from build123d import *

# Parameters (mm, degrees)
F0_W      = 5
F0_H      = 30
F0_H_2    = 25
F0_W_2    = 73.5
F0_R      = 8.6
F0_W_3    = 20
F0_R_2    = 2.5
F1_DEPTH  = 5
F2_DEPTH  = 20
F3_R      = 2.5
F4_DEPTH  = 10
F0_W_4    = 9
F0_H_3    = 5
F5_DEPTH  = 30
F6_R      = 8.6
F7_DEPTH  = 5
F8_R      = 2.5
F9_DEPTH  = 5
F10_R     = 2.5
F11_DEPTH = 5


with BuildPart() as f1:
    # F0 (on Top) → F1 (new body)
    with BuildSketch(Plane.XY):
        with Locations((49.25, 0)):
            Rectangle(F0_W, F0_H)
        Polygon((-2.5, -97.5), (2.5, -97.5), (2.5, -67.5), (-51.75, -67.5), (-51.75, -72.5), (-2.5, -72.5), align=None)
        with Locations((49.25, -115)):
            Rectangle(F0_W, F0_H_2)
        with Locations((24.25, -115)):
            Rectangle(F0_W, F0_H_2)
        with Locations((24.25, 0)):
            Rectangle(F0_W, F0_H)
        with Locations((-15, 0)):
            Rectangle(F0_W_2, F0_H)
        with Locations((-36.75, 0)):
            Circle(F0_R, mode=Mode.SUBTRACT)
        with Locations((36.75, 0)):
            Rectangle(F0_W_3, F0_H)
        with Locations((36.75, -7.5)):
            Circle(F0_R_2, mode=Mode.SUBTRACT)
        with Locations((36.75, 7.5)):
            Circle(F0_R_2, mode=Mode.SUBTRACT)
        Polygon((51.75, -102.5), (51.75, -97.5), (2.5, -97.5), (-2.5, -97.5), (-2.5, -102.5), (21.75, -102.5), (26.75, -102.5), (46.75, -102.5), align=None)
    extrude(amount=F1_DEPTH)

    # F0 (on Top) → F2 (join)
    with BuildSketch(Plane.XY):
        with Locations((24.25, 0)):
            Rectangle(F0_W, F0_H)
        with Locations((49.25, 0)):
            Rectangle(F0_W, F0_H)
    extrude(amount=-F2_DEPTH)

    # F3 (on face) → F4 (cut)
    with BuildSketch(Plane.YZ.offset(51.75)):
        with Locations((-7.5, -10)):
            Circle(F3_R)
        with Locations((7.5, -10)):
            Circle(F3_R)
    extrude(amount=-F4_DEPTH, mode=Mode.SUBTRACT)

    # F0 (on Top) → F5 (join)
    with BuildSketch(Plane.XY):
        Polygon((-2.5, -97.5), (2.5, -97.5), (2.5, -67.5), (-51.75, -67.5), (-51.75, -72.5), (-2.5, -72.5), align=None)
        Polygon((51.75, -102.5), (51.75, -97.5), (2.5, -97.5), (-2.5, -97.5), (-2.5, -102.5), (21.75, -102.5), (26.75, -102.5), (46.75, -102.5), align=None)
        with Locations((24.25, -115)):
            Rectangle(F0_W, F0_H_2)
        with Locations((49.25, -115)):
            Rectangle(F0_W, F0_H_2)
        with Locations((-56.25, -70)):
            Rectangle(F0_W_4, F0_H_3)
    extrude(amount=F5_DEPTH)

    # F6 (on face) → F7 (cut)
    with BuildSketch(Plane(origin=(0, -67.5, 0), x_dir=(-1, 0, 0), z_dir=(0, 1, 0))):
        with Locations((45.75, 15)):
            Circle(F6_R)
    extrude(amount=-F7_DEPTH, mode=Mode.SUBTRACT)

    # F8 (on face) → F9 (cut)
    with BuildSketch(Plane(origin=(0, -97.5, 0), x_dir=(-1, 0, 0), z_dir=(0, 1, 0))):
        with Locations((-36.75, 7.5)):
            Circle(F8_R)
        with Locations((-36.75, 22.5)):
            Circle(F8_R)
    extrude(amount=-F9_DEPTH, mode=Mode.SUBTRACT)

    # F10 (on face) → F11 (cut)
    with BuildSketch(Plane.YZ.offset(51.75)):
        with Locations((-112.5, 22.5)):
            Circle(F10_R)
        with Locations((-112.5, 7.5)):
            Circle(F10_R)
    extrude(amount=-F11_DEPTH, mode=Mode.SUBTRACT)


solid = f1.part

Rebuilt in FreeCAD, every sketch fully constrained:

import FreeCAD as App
import Part
import Sketcher
Q = App.Units.Quantity


def add_polygon(sketch, points):
    """Adds a closed chain of lines whose ends are joined by coincident constraints."""
    first, n = sketch.GeometryCount, len(points)
    for a, b in zip(points, points[1:] + points[:1]):
        sketch.addGeometry(Part.LineSegment(App.Vector(*a, 0), App.Vector(*b, 0)), False)
    for i in range(n):
        sketch.addConstraint(Sketcher.Constraint("Coincident", first + i, 2, first + (i + 1) % n, 1))

doc = App.newDocument("Part")
body = doc.addObject("PartDesign::Body", "Body")
body.AllowCompound = True

# Sketch on XY plane
sketch1 = body.newObject("Sketcher::SketchObject", "Sketch")
sketch1.AttachmentSupport = (doc.getObject("XY_Plane"), [""])
sketch1.MapMode = "FlatFace"
add_polygon(sketch1, [(51.8, -15), (51.8, 15), (-51.8, 15), (-51.8, -15)])  # lines 0-3
sketch1.addGeometry(Part.Circle(App.Vector(36.8, -7.5, 0), App.Vector(0, 0, 1), 2.5), False)  # 4
sketch1.addGeometry(Part.Circle(App.Vector(-36.8, 0, 0), App.Vector(0, 0, 1), 8.6), False)  # 5
sketch1.addGeometry(Part.Circle(App.Vector(36.8, 7.5, 0), App.Vector(0, 0, 1), 2.5), False)  # 6
add_polygon(sketch1, [(2.5, -97.5), (2.5, -67.5), (-51.8, -67.5), (-51.8, -72.5), (-2.5, -72.5), (-2.5, -102.5), (21.8, -102.5), (21.8, -127.5), (26.8, -127.5), (26.8, -102.5), (46.8, -102.5), (46.8, -127.5), (51.8, -127.5), (51.8, -97.5)])  # lines 7-20
sketch1.addConstraint(Sketcher.Constraint("Vertical", 0))
sketch1.addConstraint(Sketcher.Constraint("Horizontal", 1))
sketch1.addConstraint(Sketcher.Constraint("Vertical", 2))
sketch1.addConstraint(Sketcher.Constraint("Horizontal", 3))
sketch1.addConstraint(Sketcher.Constraint("Vertical", 7))
sketch1.addConstraint(Sketcher.Constraint("Horizontal", 8))
sketch1.addConstraint(Sketcher.Constraint("Vertical", 9))
sketch1.addConstraint(Sketcher.Constraint("Horizontal", 10))
sketch1.addConstraint(Sketcher.Constraint("Vertical", 11))
sketch1.addConstraint(Sketcher.Constraint("Horizontal", 12))
sketch1.addConstraint(Sketcher.Constraint("Vertical", 13))
sketch1.addConstraint(Sketcher.Constraint("Horizontal", 14))
sketch1.addConstraint(Sketcher.Constraint("Vertical", 15))
sketch1.addConstraint(Sketcher.Constraint("Horizontal", 16))
sketch1.addConstraint(Sketcher.Constraint("Vertical", 17))
sketch1.addConstraint(Sketcher.Constraint("Horizontal", 18))
sketch1.addConstraint(Sketcher.Constraint("Vertical", 19))
sketch1.addConstraint(Sketcher.Constraint("Horizontal", 20))
sketch1.addConstraint(Sketcher.Constraint("Equal", 4, 6))
sketch1.addConstraint(Sketcher.Constraint("Symmetric", 0, 2, 2, 2, -1, 1))
sketch1.addConstraint(Sketcher.Constraint("Symmetric", 4, 3, 6, 3, -1))
sketch1.addConstraint(Sketcher.Constraint("PointOnObject", 5, 3, -1))
sketch1.addConstraint(Sketcher.Constraint("Horizontal", 12, 2, 15, 2))
sketch1.addConstraint(Sketcher.Constraint("Horizontal", 14, 2, 17, 2))
sketch1.addConstraint(Sketcher.Constraint("Vertical", 2, 2, 8, 2))
sketch1.addConstraint(Sketcher.Constraint("Vertical", 3, 2, 18, 2))
sketch1.addConstraint(Sketcher.Constraint("Equal", 14, 18))
sketch1.addConstraint(Sketcher.Constraint("Equal", 10, 20))
sketch1.addConstraint(Sketcher.Constraint("Equal", 2, 7))
sketch1.addConstraint(Sketcher.Constraint("Equal", 18, 9))
sketch1.addConstraint(Sketcher.Constraint("Equal", 7, 11))
sketch1.addConstraint(Sketcher.Constraint("Equal", 11, 19))
sketch1.addConstraint(Sketcher.Constraint("Diameter", 4, Q("5 mm")))
sketch1.addConstraint(Sketcher.Constraint("Diameter", 5, Q("17.2 mm")))
sketch1.addConstraint(Sketcher.Constraint("DistanceX", 14, 1, 14, 2, Q("5 mm")))
sketch1.addConstraint(Sketcher.Constraint("DistanceX", 16, 1, 16, 2, Q("20 mm")))
sketch1.addConstraint(Sketcher.Constraint("DistanceY", 0, 1, 0, 2, Q("30 mm")))
sketch1.addConstraint(Sketcher.Constraint("DistanceX", 1, 2, 1, 1, Q("103.5 mm")))
sketch1.addConstraint(Sketcher.Constraint("DistanceY", 4, 3, 6, 3, Q("15 mm")))
sketch1.addConstraint(Sketcher.Constraint("DistanceX", 6, 3, 0, 2, Q("15 mm")))
sketch1.addConstraint(Sketcher.Constraint("DistanceX", 1, 2, 5, 3, Q("15 mm")))
sketch1.addConstraint(Sketcher.Constraint("DistanceY", 7, 2, 4, 3, Q("60 mm")))
sketch1.addConstraint(Sketcher.Constraint("DistanceX", 10, 2, 7, 2, Q("5 mm")))
pad1 = body.newObject("PartDesign::Pad", "Pad")
pad1.Profile = sketch1
pad1.Length = 5

# Sketch on XY plane
sketch2 = body.newObject("Sketcher::SketchObject", "Sketch001")
sketch2.AttachmentSupport = (doc.getObject("XY_Plane"), [""])
sketch2.MapMode = "FlatFace"
add_polygon(sketch2, [(22, 15), (22, -15), (27, -15), (27, 15)])  # lines 0-3
add_polygon(sketch2, [(47, 15), (47, -15), (52, -15), (52, 15)])  # lines 4-7
sketch2.addConstraint(Sketcher.Constraint("Vertical", 0))
sketch2.addConstraint(Sketcher.Constraint("Horizontal", 1))
sketch2.addConstraint(Sketcher.Constraint("Vertical", 2))
sketch2.addConstraint(Sketcher.Constraint("Horizontal", 3))
sketch2.addConstraint(Sketcher.Constraint("Vertical", 4))
sketch2.addConstraint(Sketcher.Constraint("Horizontal", 5))
sketch2.addConstraint(Sketcher.Constraint("Vertical", 6))
sketch2.addConstraint(Sketcher.Constraint("Horizontal", 7))
sketch2.addConstraint(Sketcher.Constraint("Horizontal", 1, 2, 4, 2))
sketch2.addConstraint(Sketcher.Constraint("Horizontal", 3, 2, 6, 2))
sketch2.addConstraint(Sketcher.Constraint("Equal", 3, 5))
sketch2.addConstraint(Sketcher.Constraint("DistanceX", 1, 1, 1, 2, Q("5 mm")))
sketch2.addConstraint(Sketcher.Constraint("DistanceY", 0, 2, 0, 1, Q("30 mm")))
sketch2.addConstraint(Sketcher.Constraint("DistanceY", 0, 2, -1, 1, Q("15 mm")))
sketch2.addConstraint(Sketcher.Constraint("DistanceX", 1, 2, 4, 2, Q("20 mm")))
sketch2.addConstraint(Sketcher.Constraint("DistanceX", -1, 1, 0, 2, Q("21.75 mm")))
pad2 = body.newObject("PartDesign::Pad", "Pad001")
pad2.Profile = sketch2
pad2.Length = 20
pad2.Reversed = True

# Sketch on YZ plane
sketch3 = body.newObject("Sketcher::SketchObject", "Sketch002")
sketch3.AttachmentSupport = (doc.getObject("YZ_Plane"), [""])
sketch3.MapMode = "FlatFace"
sketch3.AttachmentOffset = App.Placement(App.Vector(0, 0, 51.75), App.Rotation())
sketch3.addGeometry(Part.Circle(App.Vector(-7.5, -10, 0), App.Vector(0, 0, 1), 2.5), False)
sketch3.addGeometry(Part.Circle(App.Vector(7.5, -10, 0), App.Vector(0, 0, 1), 2.5), False)
sketch3.addConstraint(Sketcher.Constraint("Equal", 0, 1))
sketch3.addConstraint(Sketcher.Constraint("Symmetric", 0, 3, 1, 3, -2))
sketch3.addConstraint(Sketcher.Constraint("Diameter", 0, Q("5 mm")))
sketch3.addConstraint(Sketcher.Constraint("DistanceY", 0, 3, -1, 1, Q("10 mm")))
sketch3.addConstraint(Sketcher.Constraint("DistanceX", 0, 3, 1, 3, Q("15 mm")))
pocket1 = body.newObject("PartDesign::Pocket", "Pocket")
pocket1.Profile = sketch3
pocket1.Length = 10

# Sketch on XY plane
sketch4 = body.newObject("Sketcher::SketchObject", "Sketch003")
sketch4.AttachmentSupport = (doc.getObject("XY_Plane"), [""])
sketch4.MapMode = "FlatFace"
add_polygon(sketch4, [(2, -98), (2, -68), (-61, -68), (-61, -72), (-2, -72), (-2, -102), (22, -102), (22, -128), (27, -128), (27, -102), (47, -102), (47, -128), (52, -128), (52, -98)])  # lines 0-13
sketch4.addConstraint(Sketcher.Constraint("Vertical", 0))
sketch4.addConstraint(Sketcher.Constraint("Horizontal", 1))
sketch4.addConstraint(Sketcher.Constraint("Vertical", 2))
sketch4.addConstraint(Sketcher.Constraint("Horizontal", 3))
sketch4.addConstraint(Sketcher.Constraint("Vertical", 4))
sketch4.addConstraint(Sketcher.Constraint("Horizontal", 5))
sketch4.addConstraint(Sketcher.Constraint("Vertical", 6))
sketch4.addConstraint(Sketcher.Constraint("Horizontal", 7))
sketch4.addConstraint(Sketcher.Constraint("Vertical", 8))
sketch4.addConstraint(Sketcher.Constraint("Horizontal", 9))
sketch4.addConstraint(Sketcher.Constraint("Vertical", 10))
sketch4.addConstraint(Sketcher.Constraint("Horizontal", 11))
sketch4.addConstraint(Sketcher.Constraint("Vertical", 12))
sketch4.addConstraint(Sketcher.Constraint("Horizontal", 13))
sketch4.addConstraint(Sketcher.Constraint("Horizontal", 5, 2, 8, 2))
sketch4.addConstraint(Sketcher.Constraint("Horizontal", 7, 2, 10, 2))
sketch4.addConstraint(Sketcher.Constraint("Equal", 7, 11))
sketch4.addConstraint(Sketcher.Constraint("Equal", 11, 2))
sketch4.addConstraint(Sketcher.Constraint("Equal", 0, 4))
sketch4.addConstraint(Sketcher.Constraint("Equal", 4, 12))
sketch4.addConstraint(Sketcher.Constraint("DistanceX", 7, 1, 7, 2, Q("5 mm")))
sketch4.addConstraint(Sketcher.Constraint("DistanceX", 9, 1, 9, 2, Q("20 mm")))
sketch4.addConstraint(Sketcher.Constraint("DistanceY", 0, 1, 0, 2, Q("30 mm")))
sketch4.addConstraint(Sketcher.Constraint("DistanceX", 3, 2, 0, 2, Q("5 mm")))
sketch4.addConstraint(Sketcher.Constraint("DistanceX", 1, 2, 1, 1, Q("63.25 mm")))
sketch4.addConstraint(Sketcher.Constraint("DistanceX", 5, 1, 5, 2, Q("24.25 mm")))
sketch4.addConstraint(Sketcher.Constraint("DistanceX", -1, 1, 0, 2, Q("2.5 mm")))
sketch4.addConstraint(Sketcher.Constraint("DistanceY", 0, 2, -1, 1, Q("67.5 mm")))
pad3 = body.newObject("PartDesign::Pad", "Pad002")
pad3.Profile = sketch4
pad3.Length = 30

# Sketch on XZ plane
sketch5 = body.newObject("Sketcher::SketchObject", "Sketch004")
sketch5.AttachmentSupport = (doc.getObject("XZ_Plane"), [""])
sketch5.MapMode = "FlatFace"
sketch5.AttachmentOffset = App.Placement(App.Vector(0, 0, 67.5), App.Rotation())
sketch5.addGeometry(Part.Circle(App.Vector(-46, 15, 0), App.Vector(0, 0, 1), 9), False)
sketch5.addConstraint(Sketcher.Constraint("Diameter", 0, Q("17.2 mm")))
sketch5.addConstraint(Sketcher.Constraint("DistanceY", -1, 1, 0, 3, Q("15 mm")))
sketch5.addConstraint(Sketcher.Constraint("DistanceX", 0, 3, -1, 1, Q("45.75 mm")))
pocket2 = body.newObject("PartDesign::Pocket", "Pocket001")
pocket2.Profile = sketch5
pocket2.Length = 5
pocket2.Reversed = True

# Sketch on XZ plane
sketch6 = body.newObject("Sketcher::SketchObject", "Sketch005")
sketch6.AttachmentSupport = (doc.getObject("XZ_Plane"), [""])
sketch6.MapMode = "FlatFace"
sketch6.AttachmentOffset = App.Placement(App.Vector(0, 0, 97.5), App.Rotation())
sketch6.addGeometry(Part.Circle(App.Vector(36.8, 7.5, 0), App.Vector(0, 0, 1), 2.5), False)
sketch6.addGeometry(Part.Circle(App.Vector(36.8, 22.5, 0), App.Vector(0, 0, 1), 2.5), False)
sketch6.addConstraint(Sketcher.Constraint("Equal", 0, 1))
sketch6.addConstraint(Sketcher.Constraint("Vertical", 0, 3, 1, 3))
sketch6.addConstraint(Sketcher.Constraint("Diameter", 0, Q("5 mm")))
sketch6.addConstraint(Sketcher.Constraint("DistanceY", 0, 3, 1, 3, Q("15 mm")))
sketch6.addConstraint(Sketcher.Constraint("DistanceY", -1, 1, 0, 3, Q("7.5 mm")))
sketch6.addConstraint(Sketcher.Constraint("DistanceX", -1, 1, 0, 3, Q("36.75 mm")))
pocket3 = body.newObject("PartDesign::Pocket", "Pocket002")
pocket3.Profile = sketch6
pocket3.Length = 5
pocket3.Reversed = True

# Sketch on YZ plane
sketch7 = body.newObject("Sketcher::SketchObject", "Sketch006")
sketch7.AttachmentSupport = (doc.getObject("YZ_Plane"), [""])
sketch7.MapMode = "FlatFace"
sketch7.AttachmentOffset = App.Placement(App.Vector(0, 0, 51.75), App.Rotation())
sketch7.addGeometry(Part.Circle(App.Vector(-112.5, 22.5, 0), App.Vector(0, 0, 1), 2.5), False)
sketch7.addGeometry(Part.Circle(App.Vector(-112.5, 7.5, 0), App.Vector(0, 0, 1), 2.5), False)
sketch7.addConstraint(Sketcher.Constraint("Equal", 0, 1))
sketch7.addConstraint(Sketcher.Constraint("Vertical", 0, 3, 1, 3))
sketch7.addConstraint(Sketcher.Constraint("Diameter", 0, Q("5 mm")))
sketch7.addConstraint(Sketcher.Constraint("DistanceY", 1, 3, 0, 3, Q("15 mm")))
sketch7.addConstraint(Sketcher.Constraint("DistanceX", 0, 3, -1, 1, Q("112.5 mm")))
sketch7.addConstraint(Sketcher.Constraint("DistanceY", -1, 1, 0, 3, Q("22.5 mm")))
pocket4 = body.newObject("PartDesign::Pocket", "Pocket003")
pocket4.Profile = sketch7
pocket4.Length = 5

doc.recompute()
